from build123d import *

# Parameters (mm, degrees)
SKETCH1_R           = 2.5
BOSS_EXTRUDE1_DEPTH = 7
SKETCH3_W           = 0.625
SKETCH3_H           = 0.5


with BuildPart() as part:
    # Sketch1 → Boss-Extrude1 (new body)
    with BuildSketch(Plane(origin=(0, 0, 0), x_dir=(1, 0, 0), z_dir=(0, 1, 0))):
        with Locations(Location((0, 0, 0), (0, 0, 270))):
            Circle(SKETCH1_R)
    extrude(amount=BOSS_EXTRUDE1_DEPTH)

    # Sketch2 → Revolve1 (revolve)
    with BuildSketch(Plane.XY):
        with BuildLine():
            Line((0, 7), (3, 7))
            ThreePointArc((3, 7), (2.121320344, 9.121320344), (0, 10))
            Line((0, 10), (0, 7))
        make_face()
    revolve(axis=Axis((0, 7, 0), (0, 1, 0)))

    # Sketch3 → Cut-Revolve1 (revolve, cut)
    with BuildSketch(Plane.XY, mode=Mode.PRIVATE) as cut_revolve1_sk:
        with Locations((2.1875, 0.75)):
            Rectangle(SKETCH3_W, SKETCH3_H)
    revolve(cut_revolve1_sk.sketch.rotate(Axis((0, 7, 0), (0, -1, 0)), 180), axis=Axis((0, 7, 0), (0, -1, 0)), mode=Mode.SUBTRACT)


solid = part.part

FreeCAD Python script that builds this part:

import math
import FreeCAD as App
import Part
import Sketcher

V = App.Vector


def add_polygon(sketch, points):
    """Adds a closed chain of lines whose ends are joined by coincident constraints."""
    first, n = sketch.GeometryCount, len(points)
    for a, b in zip(points, points[1:] + points[:1]):
        sketch.addGeometry(Part.LineSegment(App.Vector(*a, 0), App.Vector(*b, 0)), False)
    for i in range(n):
        sketch.addConstraint(Sketcher.Constraint("Coincident", first + i, 2, first + (i + 1) % n, 1))

doc = App.newDocument("Part")
body = doc.addObject("PartDesign::Body", "Body")

sketch1 = body.newObject("Sketcher::SketchObject", "Sketch")
sketch1.AttachmentSupport = (doc.getObject("XZ_Plane"), [""])
sketch1.MapMode = "FlatFace"
sketch1.addGeometry(Part.Circle(V(0, 0, 0), V(0, 0, 1), 2.5), False)
sketch1.addConstraint([
    Sketcher.Constraint("Coincident", 0, 3, -1, 1),
    Sketcher.Constraint("Diameter", 0, 5.0),
])
pad1 = body.newObject("PartDesign::Pad", "Pad")
pad1.Profile = sketch1
pad1.Length = 7
pad1.Reversed = True

sketch2 = body.newObject("Sketcher::SketchObject", "Sketch001")
sketch2.AttachmentSupport = (doc.getObject("XY_Plane"), [""])
sketch2.MapMode = "FlatFace"
sketch2.addGeometry([
    Part.LineSegment(V(0, 7, 0), V(3, 7, 0)),
    Part.ArcOfCircle(Part.Circle(V(0, 7, 0), V(0, 0, 1), 3), math.radians(0), math.radians(90)),
    Part.LineSegment(V(0, 10, 0), V(0, 7, 0)),
], False)
sketch2.addConstraint([
    Sketcher.Constraint("Coincident", 0, 2, 1, 1),
    Sketcher.Constraint("Coincident", 1, 2, 2, 1),
    Sketcher.Constraint("Coincident", 2, 2, 0, 1),
    Sketcher.Constraint("Horizontal", 0),
    Sketcher.Constraint("Vertical", 2),
    Sketcher.Constraint("Coincident", 2, 2, 1, 3),
    Sketcher.Constraint("PointOnObject", 1, 3, -2),
    Sketcher.Constraint("Radius", 1, 3.0),
    Sketcher.Constraint("DistanceY", -1, 1, 1, 3, 7.0),
])
revolution = body.newObject("PartDesign::Revolution", "Revolution")
revolution.Profile = sketch2
revolution.ReferenceAxis = (sketch2, ["V_Axis"])
revolution.Angle = 360

sketch3 = body.newObject("Sketcher::SketchObject", "Sketch002")
sketch3.AttachmentSupport = (doc.getObject("XY_Plane"), [""])
sketch3.MapMode = "FlatFace"
add_polygon(sketch3, [(1.9, 1), (1.9, 0.5), (2.5, 0.5), (2.5, 1)])
sketch3.addConstraint([
    Sketcher.Constraint("Vertical", 0),
    Sketcher.Constraint("Horizontal", 1),
    Sketcher.Constraint("Vertical", 2),
    Sketcher.Constraint("Horizontal", 3),
    Sketcher.Constraint("DistanceY", 0, 2, 0, 1, 0.5),
    Sketcher.Constraint("DistanceY", -1, 1, 2, 2, 1.0),
    Sketcher.Constraint("DistanceX", -1, 1, 1, 2, 2.5),
    Sketcher.Constraint("DistanceX", 1, 1, 1, 2, 0.625),
])
groove = body.newObject("PartDesign::Groove", "Groove")
groove.Profile = sketch3
groove.ReferenceAxis = (sketch3, ["V_Axis"])
groove.Angle = 360

doc.recompute()
